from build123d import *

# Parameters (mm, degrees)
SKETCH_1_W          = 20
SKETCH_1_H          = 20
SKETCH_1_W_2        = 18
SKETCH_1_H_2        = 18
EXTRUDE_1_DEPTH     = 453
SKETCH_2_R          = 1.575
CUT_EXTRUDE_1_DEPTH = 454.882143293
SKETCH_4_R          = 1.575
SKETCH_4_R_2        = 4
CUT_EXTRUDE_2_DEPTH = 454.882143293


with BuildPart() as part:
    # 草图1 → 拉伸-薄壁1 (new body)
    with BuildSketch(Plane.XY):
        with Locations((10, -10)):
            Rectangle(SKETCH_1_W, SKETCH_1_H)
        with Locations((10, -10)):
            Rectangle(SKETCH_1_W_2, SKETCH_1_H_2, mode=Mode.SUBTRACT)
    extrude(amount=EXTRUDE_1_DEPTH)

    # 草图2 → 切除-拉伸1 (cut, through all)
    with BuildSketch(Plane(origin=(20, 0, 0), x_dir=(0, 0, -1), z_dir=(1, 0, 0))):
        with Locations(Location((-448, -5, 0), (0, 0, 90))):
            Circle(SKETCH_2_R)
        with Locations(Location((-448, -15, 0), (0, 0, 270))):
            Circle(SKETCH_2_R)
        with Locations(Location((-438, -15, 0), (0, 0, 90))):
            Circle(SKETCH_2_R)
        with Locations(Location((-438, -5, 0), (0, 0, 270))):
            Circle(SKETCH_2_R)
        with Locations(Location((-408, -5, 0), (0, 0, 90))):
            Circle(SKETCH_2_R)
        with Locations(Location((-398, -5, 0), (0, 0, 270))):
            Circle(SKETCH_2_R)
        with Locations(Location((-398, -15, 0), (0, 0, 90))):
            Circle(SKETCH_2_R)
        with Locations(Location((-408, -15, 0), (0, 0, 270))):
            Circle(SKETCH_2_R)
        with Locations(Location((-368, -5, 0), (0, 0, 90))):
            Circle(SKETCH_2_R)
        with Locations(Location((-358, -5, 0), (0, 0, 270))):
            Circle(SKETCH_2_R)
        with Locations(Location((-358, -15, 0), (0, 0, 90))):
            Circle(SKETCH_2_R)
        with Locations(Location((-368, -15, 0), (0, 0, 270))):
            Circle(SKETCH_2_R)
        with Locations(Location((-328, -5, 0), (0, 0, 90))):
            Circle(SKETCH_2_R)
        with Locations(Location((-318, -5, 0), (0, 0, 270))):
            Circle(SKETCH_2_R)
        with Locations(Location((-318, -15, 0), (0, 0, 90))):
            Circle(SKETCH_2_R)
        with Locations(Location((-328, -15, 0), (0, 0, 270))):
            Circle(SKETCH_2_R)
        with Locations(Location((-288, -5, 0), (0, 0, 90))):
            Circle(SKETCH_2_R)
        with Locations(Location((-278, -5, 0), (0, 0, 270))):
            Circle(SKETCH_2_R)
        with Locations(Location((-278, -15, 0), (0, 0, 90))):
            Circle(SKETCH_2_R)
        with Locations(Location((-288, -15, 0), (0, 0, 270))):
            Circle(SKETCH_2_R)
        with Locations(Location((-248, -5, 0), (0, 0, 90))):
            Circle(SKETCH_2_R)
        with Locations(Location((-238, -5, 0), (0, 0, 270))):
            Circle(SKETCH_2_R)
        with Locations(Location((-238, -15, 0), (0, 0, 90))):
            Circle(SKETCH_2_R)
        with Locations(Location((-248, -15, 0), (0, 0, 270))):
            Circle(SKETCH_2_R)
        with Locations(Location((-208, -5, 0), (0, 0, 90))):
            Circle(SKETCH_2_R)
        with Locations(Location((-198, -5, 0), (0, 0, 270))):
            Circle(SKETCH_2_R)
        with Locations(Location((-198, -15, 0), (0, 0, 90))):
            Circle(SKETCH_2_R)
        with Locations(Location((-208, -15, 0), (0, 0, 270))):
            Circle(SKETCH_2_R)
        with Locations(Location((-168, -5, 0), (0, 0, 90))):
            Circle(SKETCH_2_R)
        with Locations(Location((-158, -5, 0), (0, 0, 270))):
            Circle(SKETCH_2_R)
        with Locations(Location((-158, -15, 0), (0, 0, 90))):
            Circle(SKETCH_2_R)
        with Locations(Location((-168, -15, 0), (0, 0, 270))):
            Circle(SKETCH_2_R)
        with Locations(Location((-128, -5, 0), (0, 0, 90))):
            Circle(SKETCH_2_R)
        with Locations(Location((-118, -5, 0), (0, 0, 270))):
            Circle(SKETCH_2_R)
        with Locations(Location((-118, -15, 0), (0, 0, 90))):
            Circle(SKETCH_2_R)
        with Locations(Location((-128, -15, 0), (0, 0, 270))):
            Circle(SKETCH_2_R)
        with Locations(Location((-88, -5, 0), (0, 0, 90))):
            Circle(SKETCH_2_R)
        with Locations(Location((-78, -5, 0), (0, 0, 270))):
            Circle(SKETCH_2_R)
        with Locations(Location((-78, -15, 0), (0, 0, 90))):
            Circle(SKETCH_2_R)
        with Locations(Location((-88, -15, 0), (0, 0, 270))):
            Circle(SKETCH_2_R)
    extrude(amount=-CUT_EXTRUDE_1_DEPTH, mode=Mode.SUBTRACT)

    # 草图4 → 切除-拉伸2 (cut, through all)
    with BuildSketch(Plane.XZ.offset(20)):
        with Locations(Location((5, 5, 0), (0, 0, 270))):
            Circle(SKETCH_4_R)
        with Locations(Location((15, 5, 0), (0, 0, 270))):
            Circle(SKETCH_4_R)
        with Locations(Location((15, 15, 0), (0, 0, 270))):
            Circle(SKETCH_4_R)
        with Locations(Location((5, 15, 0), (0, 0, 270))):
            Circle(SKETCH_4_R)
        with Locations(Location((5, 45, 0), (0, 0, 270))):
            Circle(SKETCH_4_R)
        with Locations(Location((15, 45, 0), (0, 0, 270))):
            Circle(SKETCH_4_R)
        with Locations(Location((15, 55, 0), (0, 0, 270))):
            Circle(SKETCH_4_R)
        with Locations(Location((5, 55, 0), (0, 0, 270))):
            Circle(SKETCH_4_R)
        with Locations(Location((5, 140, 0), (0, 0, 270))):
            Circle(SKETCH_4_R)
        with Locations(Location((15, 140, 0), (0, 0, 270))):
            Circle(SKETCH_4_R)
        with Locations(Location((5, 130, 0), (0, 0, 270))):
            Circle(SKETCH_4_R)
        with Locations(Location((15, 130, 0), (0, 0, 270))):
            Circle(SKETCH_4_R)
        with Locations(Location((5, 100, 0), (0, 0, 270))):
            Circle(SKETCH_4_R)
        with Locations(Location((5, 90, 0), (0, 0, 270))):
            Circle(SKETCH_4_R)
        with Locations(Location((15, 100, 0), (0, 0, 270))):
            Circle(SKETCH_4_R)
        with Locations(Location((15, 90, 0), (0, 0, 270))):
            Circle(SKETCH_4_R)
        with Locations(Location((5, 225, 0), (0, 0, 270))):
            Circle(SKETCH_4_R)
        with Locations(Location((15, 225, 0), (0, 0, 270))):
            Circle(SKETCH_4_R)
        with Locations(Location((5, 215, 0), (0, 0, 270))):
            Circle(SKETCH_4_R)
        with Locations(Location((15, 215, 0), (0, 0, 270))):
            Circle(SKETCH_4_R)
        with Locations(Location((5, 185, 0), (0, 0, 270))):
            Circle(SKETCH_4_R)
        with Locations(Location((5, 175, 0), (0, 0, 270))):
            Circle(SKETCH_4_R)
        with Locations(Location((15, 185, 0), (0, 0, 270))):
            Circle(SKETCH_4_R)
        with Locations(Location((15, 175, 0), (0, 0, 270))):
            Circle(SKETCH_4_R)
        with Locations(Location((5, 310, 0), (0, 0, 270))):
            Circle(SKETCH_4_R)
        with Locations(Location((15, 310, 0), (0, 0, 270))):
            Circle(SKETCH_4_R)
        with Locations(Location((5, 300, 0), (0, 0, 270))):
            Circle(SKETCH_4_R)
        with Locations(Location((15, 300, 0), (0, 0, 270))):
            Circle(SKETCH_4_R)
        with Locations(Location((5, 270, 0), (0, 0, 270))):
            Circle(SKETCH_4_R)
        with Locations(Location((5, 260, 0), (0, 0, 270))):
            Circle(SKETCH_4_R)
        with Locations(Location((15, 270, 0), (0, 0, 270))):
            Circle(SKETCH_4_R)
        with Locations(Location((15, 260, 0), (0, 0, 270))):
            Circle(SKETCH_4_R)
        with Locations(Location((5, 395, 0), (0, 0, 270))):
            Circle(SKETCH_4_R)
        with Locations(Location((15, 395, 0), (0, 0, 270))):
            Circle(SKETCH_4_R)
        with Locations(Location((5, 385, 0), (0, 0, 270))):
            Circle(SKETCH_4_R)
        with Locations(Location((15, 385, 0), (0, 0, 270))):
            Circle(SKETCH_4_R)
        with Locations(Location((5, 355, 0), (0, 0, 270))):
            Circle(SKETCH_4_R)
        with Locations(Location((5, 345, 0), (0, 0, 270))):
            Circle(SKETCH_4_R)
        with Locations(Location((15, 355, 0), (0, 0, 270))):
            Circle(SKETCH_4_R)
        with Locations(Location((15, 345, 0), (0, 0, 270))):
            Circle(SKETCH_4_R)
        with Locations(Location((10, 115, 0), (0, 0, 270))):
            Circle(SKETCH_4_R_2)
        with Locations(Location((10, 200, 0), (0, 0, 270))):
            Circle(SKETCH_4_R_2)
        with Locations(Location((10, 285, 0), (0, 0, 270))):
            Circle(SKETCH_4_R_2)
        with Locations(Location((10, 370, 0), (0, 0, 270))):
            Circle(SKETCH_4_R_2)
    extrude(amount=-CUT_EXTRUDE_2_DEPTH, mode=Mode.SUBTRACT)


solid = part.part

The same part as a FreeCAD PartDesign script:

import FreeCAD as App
import Part
import Sketcher

doc = App.newDocument("Part")
body = doc.addObject("PartDesign::Body", "Body")

# Sketch on XY plane
sketch1 = doc.addObject("Sketcher::SketchObject", "Sketch")
body.addObject(sketch1)
sketch1.AttachmentSupport = (doc.XY_Plane, [""])
sketch1.MapMode = "FlatFace"
sketch1.addGeometry([
    Part.LineSegment(App.Vector(0, 0, 0), App.Vector(0, -20, 0)),  # 0
    Part.LineSegment(App.Vector(0, -20, 0), App.Vector(20, -20, 0)),  # 1
    Part.LineSegment(App.Vector(20, -20, 0), App.Vector(20, 0, 0)),  # 2
    Part.LineSegment(App.Vector(20, 0, 0), App.Vector(0, 0, 0)),  # 3
    Part.LineSegment(App.Vector(19, -19, 0), App.Vector(1, -19, 0)),  # 4
    Part.LineSegment(App.Vector(1, -19, 0), App.Vector(1, -1, 0)),  # 5
    Part.LineSegment(App.Vector(1, -1, 0), App.Vector(19, -1, 0)),  # 6
    Part.LineSegment(App.Vector(19, -1, 0), App.Vector(19, -19, 0)),  # 7
], False)
sketch1.addConstraint([
    Sketcher.Constraint("Coincident", 0, 2, 1, 1),
    Sketcher.Constraint("Coincident", 1, 2, 2, 1),
    Sketcher.Constraint("Coincident", 2, 2, 3, 1),
    Sketcher.Constraint("Coincident", 3, 2, 0, 1),
    Sketcher.Constraint("Coincident", 4, 2, 5, 1),
    Sketcher.Constraint("Coincident", 5, 2, 6, 1),
    Sketcher.Constraint("Coincident", 6, 2, 7, 1),
    Sketcher.Constraint("Coincident", 7, 2, 4, 1),
    Sketcher.Constraint("Vertical", 0),
    Sketcher.Constraint("Horizontal", 1),
    Sketcher.Constraint("Vertical", 2),
    Sketcher.Constraint("Horizontal", 3),
    Sketcher.Constraint("Horizontal", 4),
    Sketcher.Constraint("Vertical", 5),
    Sketcher.Constraint("Horizontal", 6),
    Sketcher.Constraint("Vertical", 7),
    Sketcher.Constraint("Coincident", 3, 2, -1, 1),
    Sketcher.Constraint("Equal", 3, 0),
    Sketcher.Constraint("Equal", 6, 5),
    Sketcher.Constraint("DistanceX", 1, 1, 1, 2, 20.0),
    Sketcher.Constraint("DistanceX", 4, 2, 4, 1, 18.0),
    Sketcher.Constraint("DistanceX", -1, 1, 4, 2, 1.0),
    Sketcher.Constraint("DistanceY", 4, 2, -1, 1, 19.0),
])
pad1 = doc.addObject("PartDesign::Pad", "Pad")
body.addObject(pad1)
pad1.Profile = sketch1
pad1.Length = 453

# Sketch on YZ plane
sketch2 = doc.addObject("Sketcher::SketchObject", "Sketch001")
body.addObject(sketch2)
sketch2.AttachmentSupport = (doc.YZ_Plane, [""])
sketch2.MapMode = "FlatFace"
sketch2.AttachmentOffset = App.Placement(App.Vector(0, 0, 20), App.Rotation())
sketch2.addGeometry([
    Part.Circle(App.Vector(-5, 448, 0), App.Vector(0, 0, 1), 1.575),  # 0
    Part.Circle(App.Vector(-15, 448, 0), App.Vector(0, 0, 1), 1.575),  # 1
    Part.Circle(App.Vector(-15, 438, 0), App.Vector(0, 0, 1), 1.575),  # 2
    Part.Circle(App.Vector(-5, 438, 0), App.Vector(0, 0, 1), 1.575),  # 3
    Part.Circle(App.Vector(-5, 408, 0), App.Vector(0, 0, 1), 1.575),  # 4
    Part.Circle(App.Vector(-5, 398, 0), App.Vector(0, 0, 1), 1.575),  # 5
    Part.Circle(App.Vector(-15, 398, 0), App.Vector(0, 0, 1), 1.575),  # 6
    Part.Circle(App.Vector(-15, 408, 0), App.Vector(0, 0, 1), 1.575),  # 7
    Part.Circle(App.Vector(-5, 368, 0), App.Vector(0, 0, 1), 1.575),  # 8
    Part.Circle(App.Vector(-5, 358, 0), App.Vector(0, 0, 1), 1.575),  # 9
    Part.Circle(App.Vector(-15, 358, 0), App.Vector(0, 0, 1), 1.575),  # 10
    Part.Circle(App.Vector(-15, 368, 0), App.Vector(0, 0, 1), 1.575),  # 11
    Part.Circle(App.Vector(-5, 328, 0), App.Vector(0, 0, 1), 1.575),  # 12
    Part.Circle(App.Vector(-5, 318, 0), App.Vector(0, 0, 1), 1.575),  # 13
    Part.Circle(App.Vector(-15, 318, 0), App.Vector(0, 0, 1), 1.575),  # 14
    Part.Circle(App.Vector(-15, 328, 0), App.Vector(0, 0, 1), 1.575),  # 15
    Part.Circle(App.Vector(-5, 288, 0), App.Vector(0, 0, 1), 1.575),  # 16
    Part.Circle(App.Vector(-5, 278, 0), App.Vector(0, 0, 1), 1.575),  # 17
    Part.Circle(App.Vector(-15, 278, 0), App.Vector(0, 0, 1), 1.575),  # 18
    Part.Circle(App.Vector(-15, 288, 0), App.Vector(0, 0, 1), 1.575),  # 19
    Part.Circle(App.Vector(-5, 248, 0), App.Vector(0, 0, 1), 1.575),  # 20
    Part.Circle(App.Vector(-5, 238, 0), App.Vector(0, 0, 1), 1.575),  # 21
    Part.Circle(App.Vector(-15, 238, 0), App.Vector(0, 0, 1), 1.575),  # 22
    Part.Circle(App.Vector(-15, 248, 0), App.Vector(0, 0, 1), 1.575),  # 23
    Part.Circle(App.Vector(-5, 208, 0), App.Vector(0, 0, 1), 1.575),  # 24
    Part.Circle(App.Vector(-5, 198, 0), App.Vector(0, 0, 1), 1.575),  # 25
    Part.Circle(App.Vector(-15, 198, 0), App.Vector(0, 0, 1), 1.575),  # 26
    Part.Circle(App.Vector(-15, 208, 0), App.Vector(0, 0, 1), 1.575),  # 27
    Part.Circle(App.Vector(-5, 168, 0), App.Vector(0, 0, 1), 1.575),  # 28
    Part.Circle(App.Vector(-5, 158, 0), App.Vector(0, 0, 1), 1.575),  # 29
    Part.Circle(App.Vector(-15, 158, 0), App.Vector(0, 0, 1), 1.575),  # 30
    Part.Circle(App.Vector(-15, 168, 0), App.Vector(0, 0, 1), 1.575),  # 31
    Part.Circle(App.Vector(-5, 128, 0), App.Vector(0, 0, 1), 1.575),  # 32
    Part.Circle(App.Vector(-5, 118, 0), App.Vector(0, 0, 1), 1.575),  # 33
    Part.Circle(App.Vector(-15, 118, 0), App.Vector(0, 0, 1), 1.575),  # 34
    Part.Circle(App.Vector(-15, 128, 0), App.Vector(0, 0, 1), 1.575),  # 35
    Part.Circle(App.Vector(-5, 88, 0), App.Vector(0, 0, 1), 1.575),  # 36
    Part.Circle(App.Vector(-5, 78, 0), App.Vector(0, 0, 1), 1.575),  # 37
    Part.Circle(App.Vector(-15, 78, 0), App.Vector(0, 0, 1), 1.575),  # 38
    Part.Circle(App.Vector(-15, 88, 0), App.Vector(0, 0, 1), 1.575),  # 39
], False)
sketch2.addConstraint([
    Sketcher.Constraint("Equal", 0, 1),
    Sketcher.Constraint("Equal", 1, 2),
    Sketcher.Constraint("Equal", 2, 3),
    Sketcher.Constraint("Equal", 3, 4),
    Sketcher.Constraint("Equal", 4, 5),
    Sketcher.Constraint("Equal", 5, 6),
    Sketcher.Constraint("Equal", 6, 7),
    Sketcher.Constraint("Equal", 7, 8),
    Sketcher.Constraint("Equal", 8, 9),
    Sketcher.Constraint("Equal", 9, 10),
    Sketcher.Constraint("Equal", 10, 11),
    Sketcher.Constraint("Equal", 11, 12),
    Sketcher.Constraint("Equal", 12, 13),
    Sketcher.Constraint("Equal", 13, 14),
    Sketcher.Constraint("Equal", 14, 15),
    Sketcher.Constraint("Equal", 15, 16),
    Sketcher.Constraint("Equal", 16, 17),
    Sketcher.Constraint("Equal", 17, 18),
    Sketcher.Constraint("Equal", 18, 19),
    Sketcher.Constraint("Equal", 19, 20),
    Sketcher.Constraint("Equal", 20, 21),
    Sketcher.Constraint("Equal", 21, 22),
    Sketcher.Constraint("Equal", 22, 23),
    Sketcher.Constraint("Equal", 23, 24),
    Sketcher.Constraint("Equal", 24, 25),
    Sketcher.Constraint("Equal", 25, 26),
    Sketcher.Constraint("Equal", 26, 27),
    Sketcher.Constraint("Equal", 27, 28),
    Sketcher.Constraint("Equal", 28, 29),
    Sketcher.Constraint("Equal", 29, 30),
    Sketcher.Constraint("Equal", 30, 31),
    Sketcher.Constraint("Equal", 31, 32),
    Sketcher.Constraint("Equal", 32, 33),
    Sketcher.Constraint("Equal", 33, 34),
    Sketcher.Constraint("Equal", 34, 35),
    Sketcher.Constraint("Equal", 35, 36),
    Sketcher.Constraint("Equal", 36, 37),
    Sketcher.Constraint("Equal", 37, 38),
    Sketcher.Constraint("Equal", 38, 39),
    Sketcher.Constraint("Horizontal", 0, 3, 1, 3),
    Sketcher.Constraint("Horizontal", 2, 3, 3, 3),
    Sketcher.Constraint("Horizontal", 5, 3, 6, 3),
    Sketcher.Constraint("Horizontal", 4, 3, 7, 3),
    Sketcher.Constraint("Horizontal", 9, 3, 10, 3),
    Sketcher.Constraint("Horizontal", 8, 3, 11, 3),
    Sketcher.Constraint("Horizontal", 13, 3, 14, 3),
    Sketcher.Constraint("Horizontal", 12, 3, 15, 3),
    Sketcher.Constraint("Horizontal", 17, 3, 18, 3),
    Sketcher.Constraint("Horizontal", 16, 3, 19, 3),
    Sketcher.Constraint("Horizontal", 21, 3, 22, 3),
    Sketcher.Constraint("Horizontal", 20, 3, 23, 3),
    Sketcher.Constraint("Horizontal", 25, 3, 26, 3),
    Sketcher.Constraint("Horizontal", 24, 3, 27, 3),
    Sketcher.Constraint("Horizontal", 29, 3, 30, 3),
    Sketcher.Constraint("Horizontal", 28, 3, 31, 3),
    Sketcher.Constraint("Horizontal", 33, 3, 34, 3),
    Sketcher.Constraint("Horizontal", 32, 3, 35, 3),
    Sketcher.Constraint("Horizontal", 37, 3, 38, 3),
    Sketcher.Constraint("Horizontal", 36, 3, 39, 3),
    Sketcher.Constraint("Vertical", 1, 3, 2, 3),
    Sketcher.Constraint("Vertical", 0, 3, 3, 3),
    Sketcher.Constraint("Vertical", 3, 3, 4, 3),
    Sketcher.Constraint("Vertical", 4, 3, 5, 3),
    Sketcher.Constraint("Vertical", 2, 3, 6, 3),
    Sketcher.Constraint("Vertical", 6, 3, 7, 3),
    Sketcher.Constraint("Vertical", 5, 3, 8, 3),
    Sketcher.Constraint("Vertical", 8, 3, 9, 3),
    Sketcher.Constraint("Vertical", 7, 3, 10, 3),
    Sketcher.Constraint("Vertical", 10, 3, 11, 3),
    Sketcher.Constraint("Vertical", 9, 3, 12, 3),
    Sketcher.Constraint("Vertical", 12, 3, 13, 3),
    Sketcher.Constraint("Vertical", 11, 3, 14, 3),
    Sketcher.Constraint("Vertical", 14, 3, 15, 3),
    Sketcher.Constraint("Vertical", 13, 3, 16, 3),
    Sketcher.Constraint("Vertical", 16, 3, 17, 3),
    Sketcher.Constraint("Vertical", 15, 3, 18, 3),
    Sketcher.Constraint("Vertical", 18, 3, 19, 3),
    Sketcher.Constraint("Vertical", 17, 3, 20, 3),
    Sketcher.Constraint("Vertical", 20, 3, 21, 3),
    Sketcher.Constraint("Vertical", 19, 3, 22, 3),
    Sketcher.Constraint("Vertical", 22, 3, 23, 3),
    Sketcher.Constraint("Vertical", 21, 3, 24, 3),
    Sketcher.Constraint("Vertical", 24, 3, 25, 3),
    Sketcher.Constraint("Vertical", 23, 3, 26, 3),
    Sketcher.Constraint("Vertical", 26, 3, 27, 3),
    Sketcher.Constraint("Vertical", 25, 3, 28, 3),
    Sketcher.Constraint("Vertical", 28, 3, 29, 3),
    Sketcher.Constraint("Vertical", 27, 3, 30, 3),
    Sketcher.Constraint("Vertical", 30, 3, 31, 3),
    Sketcher.Constraint("Vertical", 29, 3, 32, 3),
    Sketcher.Constraint("Vertical", 32, 3, 33, 3),
    Sketcher.Constraint("Vertical", 31, 3, 34, 3),
    Sketcher.Constraint("Vertical", 34, 3, 35, 3),
    Sketcher.Constraint("Vertical", 33, 3, 36, 3),
    Sketcher.Constraint("Vertical", 36, 3, 37, 3),
    Sketcher.Constraint("Vertical", 35, 3, 38, 3),
    Sketcher.Constraint("Vertical", 38, 3, 39, 3),
    Sketcher.Constraint("Diameter", 0, 3.15),
    Sketcher.Constraint("DistanceX", 0, 3, -1, 1, 5.0),
    Sketcher.Constraint("DistanceY", -1, 1, 0, 3, 448.0),
    Sketcher.Constraint("DistanceX", 1, 3, -1, 1, 15.0),
    Sketcher.Constraint("DistanceY", -1, 1, 2, 3, 438.0),
    Sketcher.Constraint("DistanceY", -1, 1, 4, 3, 408.0),
    Sketcher.Constraint("DistanceY", -1, 1, 5, 3, 398.0),
    Sketcher.Constraint("DistanceY", -1, 1, 8, 3, 368.0),
    Sketcher.Constraint("DistanceY", -1, 1, 9, 3, 358.0),
    Sketcher.Constraint("DistanceY", -1, 1, 12, 3, 328.0),
    Sketcher.Constraint("DistanceY", -1, 1, 13, 3, 318.0),
    Sketcher.Constraint("DistanceY", -1, 1, 16, 3, 288.0),
    Sketcher.Constraint("DistanceY", -1, 1, 17, 3, 278.0),
    Sketcher.Constraint("DistanceY", -1, 1, 20, 3, 248.0),
    Sketcher.Constraint("DistanceY", -1, 1, 21, 3, 238.0),
    Sketcher.Constraint("DistanceY", -1, 1, 24, 3, 208.0),
    Sketcher.Constraint("DistanceY", -1, 1, 25, 3, 198.0),
    Sketcher.Constraint("DistanceY", -1, 1, 28, 3, 168.0),
    Sketcher.Constraint("DistanceY", -1, 1, 29, 3, 158.0),
    Sketcher.Constraint("DistanceY", -1, 1, 32, 3, 128.0),
    Sketcher.Constraint("DistanceY", -1, 1, 33, 3, 118.0),
    Sketcher.Constraint("DistanceY", -1, 1, 36, 3, 88.0),
    Sketcher.Constraint("DistanceY", -1, 1, 37, 3, 78.0),
])
pocket1 = doc.addObject("PartDesign::Pocket", "Pocket")
body.addObject(pocket1)
pocket1.Profile = sketch2
pocket1.Type = "ThroughAll"

# Sketch on XZ plane
sketch3 = doc.addObject("Sketcher::SketchObject", "Sketch002")
body.addObject(sketch3)
sketch3.AttachmentSupport = (doc.XZ_Plane, [""])
sketch3.MapMode = "FlatFace"
sketch3.AttachmentOffset = App.Placement(App.Vector(0, 0, 20), App.Rotation())
sketch3.addGeometry([
    Part.Circle(App.Vector(5, 5, 0), App.Vector(0, 0, 1), 1.575),  # 0
    Part.Circle(App.Vector(15, 5, 0), App.Vector(0, 0, 1), 1.575),  # 1
    Part.Circle(App.Vector(15, 15, 0), App.Vector(0, 0, 1), 1.575),  # 2
    Part.Circle(App.Vector(5, 15, 0), App.Vector(0, 0, 1), 1.575),  # 3
    Part.Circle(App.Vector(5, 45, 0), App.Vector(0, 0, 1), 1.575),  # 4
    Part.Circle(App.Vector(15, 45, 0), App.Vector(0, 0, 1), 1.575),  # 5
    Part.Circle(App.Vector(15, 55, 0), App.Vector(0, 0, 1), 1.575),  # 6
    Part.Circle(App.Vector(5, 55, 0), App.Vector(0, 0, 1), 1.575),  # 7
    Part.Circle(App.Vector(5, 140, 0), App.Vector(0, 0, 1), 1.575),  # 8
    Part.Circle(App.Vector(15, 140, 0), App.Vector(0, 0, 1), 1.575),  # 9
    Part.Circle(App.Vector(5, 130, 0), App.Vector(0, 0, 1), 1.575),  # 10
    Part.Circle(App.Vector(15, 130, 0), App.Vector(0, 0, 1), 1.575),  # 11
    Part.Circle(App.Vector(5, 100, 0), App.Vector(0, 0, 1), 1.575),  # 12
    Part.Circle(App.Vector(5, 90, 0), App.Vector(0, 0, 1), 1.575),  # 13
    Part.Circle(App.Vector(15, 100, 0), App.Vector(0, 0, 1), 1.575),  # 14
    Part.Circle(App.Vector(15, 90, 0), App.Vector(0, 0, 1), 1.575),  # 15
    Part.Circle(App.Vector(5, 225, 0), App.Vector(0, 0, 1), 1.575),  # 16
    Part.Circle(App.Vector(15, 225, 0), App.Vector(0, 0, 1), 1.575),  # 17
    Part.Circle(App.Vector(5, 215, 0), App.Vector(0, 0, 1), 1.575),  # 18
    Part.Circle(App.Vector(15, 215, 0), App.Vector(0, 0, 1), 1.575),  # 19
    Part.Circle(App.Vector(5, 185, 0), App.Vector(0, 0, 1), 1.575),  # 20
    Part.Circle(App.Vector(5, 175, 0), App.Vector(0, 0, 1), 1.575),  # 21
    Part.Circle(App.Vector(15, 185, 0), App.Vector(0, 0, 1), 1.575),  # 22
    Part.Circle(App.Vector(15, 175, 0), App.Vector(0, 0, 1), 1.575),  # 23
    Part.Circle(App.Vector(5, 310, 0), App.Vector(0, 0, 1), 1.575),  # 24
    Part.Circle(App.Vector(15, 310, 0), App.Vector(0, 0, 1), 1.575),  # 25
    Part.Circle(App.Vector(5, 300, 0), App.Vector(0, 0, 1), 1.575),  # 26
    Part.Circle(App.Vector(15, 300, 0), App.Vector(0, 0, 1), 1.575),  # 27
    Part.Circle(App.Vector(5, 270, 0), App.Vector(0, 0, 1), 1.575),  # 28
    Part.Circle(App.Vector(5, 260, 0), App.Vector(0, 0, 1), 1.575),  # 29
    Part.Circle(App.Vector(15, 270, 0), App.Vector(0, 0, 1), 1.575),  # 30
    Part.Circle(App.Vector(15, 260, 0), App.Vector(0, 0, 1), 1.575),  # 31
    Part.Circle(App.Vector(5, 395, 0), App.Vector(0, 0, 1), 1.575),  # 32
    Part.Circle(App.Vector(15, 395, 0), App.Vector(0, 0, 1), 1.575),  # 33
    Part.Circle(App.Vector(5, 385, 0), App.Vector(0, 0, 1), 1.575),  # 34
    Part.Circle(App.Vector(15, 385, 0), App.Vector(0, 0, 1), 1.575),  # 35
    Part.Circle(App.Vector(5, 355, 0), App.Vector(0, 0, 1), 1.575),  # 36
    Part.Circle(App.Vector(5, 345, 0), App.Vector(0, 0, 1), 1.575),  # 37
    Part.Circle(App.Vector(15, 355, 0), App.Vector(0, 0, 1), 1.575),  # 38
    Part.Circle(App.Vector(15, 345, 0), App.Vector(0, 0, 1), 1.575),  # 39
    Part.Circle(App.Vector(10, 115, 0), App.Vector(0, 0, 1), 4),  # 40
    Part.Circle(App.Vector(10, 200, 0), App.Vector(0, 0, 1), 4),  # 41
    Part.Circle(App.Vector(10, 285, 0), App.Vector(0, 0, 1), 4),  # 42
    Part.Circle(App.Vector(10, 370, 0), App.Vector(0, 0, 1), 4),  # 43
], False)
sketch3.addConstraint([
    Sketcher.Constraint("Equal", 0, 1),
    Sketcher.Constraint("Equal", 1, 2),
    Sketcher.Constraint("Equal", 2, 3),
    Sketcher.Constraint("Equal", 3, 4),
    Sketcher.Constraint("Equal", 4, 5),
    Sketcher.Constraint("Equal", 5, 6),
    Sketcher.Constraint("Equal", 6, 7),
    Sketcher.Constraint("Equal", 7, 8),
    Sketcher.Constraint("Equal", 8, 9),
    Sketcher.Constraint("Equal", 9, 10),
    Sketcher.Constraint("Equal", 10, 11),
    Sketcher.Constraint("Equal", 11, 12),
    Sketcher.Constraint("Equal", 12, 13),
    Sketcher.Constraint("Equal", 13, 14),
    Sketcher.Constraint("Equal", 14, 15),
    Sketcher.Constraint("Equal", 15, 16),
    Sketcher.Constraint("Equal", 16, 17),
    Sketcher.Constraint("Equal", 17, 18),
    Sketcher.Constraint("Equal", 18, 19),
    Sketcher.Constraint("Equal", 19, 20),
    Sketcher.Constraint("Equal", 20, 21),
    Sketcher.Constraint("Equal", 21, 22),
    Sketcher.Constraint("Equal", 22, 23),
    Sketcher.Constraint("Equal", 23, 24),
    Sketcher.Constraint("Equal", 24, 25),
    Sketcher.Constraint("Equal", 25, 26),
    Sketcher.Constraint("Equal", 26, 27),
    Sketcher.Constraint("Equal", 27, 28),
    Sketcher.Constraint("Equal", 28, 29),
    Sketcher.Constraint("Equal", 29, 30),
    Sketcher.Constraint("Equal", 30, 31),
    Sketcher.Constraint("Equal", 31, 32),
    Sketcher.Constraint("Equal", 32, 33),
    Sketcher.Constraint("Equal", 33, 34),
    Sketcher.Constraint("Equal", 34, 35),
    Sketcher.Constraint("Equal", 35, 36),
    Sketcher.Constraint("Equal", 36, 37),
    Sketcher.Constraint("Equal", 37, 38),
    Sketcher.Constraint("Equal", 38, 39),
    Sketcher.Constraint("Equal", 40, 41),
    Sketcher.Constraint("Equal", 41, 42),
    Sketcher.Constraint("Equal", 42, 43),
    Sketcher.Constraint("Horizontal", 0, 3, 1, 3),
    Sketcher.Constraint("Horizontal", 2, 3, 3, 3),
    Sketcher.Constraint("Horizontal", 4, 3, 5, 3),
    Sketcher.Constraint("Horizontal", 6, 3, 7, 3),
    Sketcher.Constraint("Horizontal", 8, 3, 9, 3),
    Sketcher.Constraint("Horizontal", 10, 3, 11, 3),
    Sketcher.Constraint("Horizontal", 12, 3, 14, 3),
    Sketcher.Constraint("Horizontal", 13, 3, 15, 3),
    Sketcher.Constraint("Horizontal", 16, 3, 17, 3),
    Sketcher.Constraint("Horizontal", 18, 3, 19, 3),
    Sketcher.Constraint("Horizontal", 20, 3, 22, 3),
    Sketcher.Constraint("Horizontal", 21, 3, 23, 3),
    Sketcher.Constraint("Horizontal", 24, 3, 25, 3),
    Sketcher.Constraint("Horizontal", 26, 3, 27, 3),
    Sketcher.Constraint("Horizontal", 28, 3, 30, 3),
    Sketcher.Constraint("Horizontal", 29, 3, 31, 3),
    Sketcher.Constraint("Horizontal", 32, 3, 33, 3),
    Sketcher.Constraint("Horizontal", 34, 3, 35, 3),
    Sketcher.Constraint("Horizontal", 36, 3, 38, 3),
    Sketcher.Constraint("Horizontal", 37, 3, 39, 3),
    Sketcher.Constraint("Vertical", 1, 3, 2, 3),
    Sketcher.Constraint("Vertical", 0, 3, 3, 3),
    Sketcher.Constraint("Vertical", 3, 3, 4, 3),
    Sketcher.Constraint("Vertical", 2, 3, 5, 3),
    Sketcher.Constraint("Vertical", 5, 3, 6, 3),
    Sketcher.Constraint("Vertical", 4, 3, 7, 3),
    Sketcher.Constraint("Vertical", 7, 3, 8, 3),
    Sketcher.Constraint("Vertical", 6, 3, 9, 3),
    Sketcher.Constraint("Vertical", 8, 3, 10, 3),
    Sketcher.Constraint("Vertical", 9, 3, 11, 3),
    Sketcher.Constraint("Vertical", 10, 3, 12, 3),
    Sketcher.Constraint("Vertical", 12, 3, 13, 3),
    Sketcher.Constraint("Vertical", 11, 3, 14, 3),
    Sketcher.Constraint("Vertical", 14, 3, 15, 3),
    Sketcher.Constraint("Vertical", 13, 3, 16, 3),
    Sketcher.Constraint("Vertical", 15, 3, 17, 3),
    Sketcher.Constraint("Vertical", 16, 3, 18, 3),
    Sketcher.Constraint("Vertical", 17, 3, 19, 3),
    Sketcher.Constraint("Vertical", 18, 3, 20, 3),
    Sketcher.Constraint("Vertical", 20, 3, 21, 3),
    Sketcher.Constraint("Vertical", 19, 3, 22, 3),
    Sketcher.Constraint("Vertical", 22, 3, 23, 3),
    Sketcher.Constraint("Vertical", 21, 3, 24, 3),
    Sketcher.Constraint("Vertical", 23, 3, 25, 3),
    Sketcher.Constraint("Vertical", 24, 3, 26, 3),
    Sketcher.Constraint("Vertical", 25, 3, 27, 3),
    Sketcher.Constraint("Vertical", 26, 3, 28, 3),
    Sketcher.Constraint("Vertical", 28, 3, 29, 3),
    Sketcher.Constraint("Vertical", 27, 3, 30, 3),
    Sketcher.Constraint("Vertical", 30, 3, 31, 3),
    Sketcher.Constraint("Vertical", 29, 3, 32, 3),
    Sketcher.Constraint("Vertical", 31, 3, 33, 3),
    Sketcher.Constraint("Vertical", 32, 3, 34, 3),
    Sketcher.Constraint("Vertical", 33, 3, 35, 3),
    Sketcher.Constraint("Vertical", 34, 3, 36, 3),
    Sketcher.Constraint("Vertical", 36, 3, 37, 3),
    Sketcher.Constraint("Vertical", 35, 3, 38, 3),
    Sketcher.Constraint("Vertical", 38, 3, 39, 3),
    Sketcher.Constraint("Vertical", 40, 3, 41, 3),
    Sketcher.Constraint("Vertical", 41, 3, 42, 3),
    Sketcher.Constraint("Vertical", 42, 3, 43, 3),
    Sketcher.Constraint("Diameter", 40, 8.0),
    Sketcher.Constraint("Diameter", 0, 3.15),
    Sketcher.Constraint("DistanceX", -1, 1, 0, 3, 5.0),
    Sketcher.Constraint("DistanceY", -1, 1, 0, 3, 5.0),
    Sketcher.Constraint("DistanceX", -1, 1, 1, 3, 15.0),
    Sketcher.Constraint("DistanceY", -1, 1, 2, 3, 15.0),
    Sketcher.Constraint("DistanceY", -1, 1, 4, 3, 45.0),
    Sketcher.Constraint("DistanceY", -1, 1, 6, 3, 55.0),
    Sketcher.Constraint("DistanceY", -1, 1, 8, 3, 140.0),
    Sketcher.Constraint("DistanceY", -1, 1, 10, 3, 130.0),
    Sketcher.Constraint("DistanceY", -1, 1, 12, 3, 100.0),
    Sketcher.Constraint("DistanceY", -1, 1, 13, 3, 90.0),
    Sketcher.Constraint("DistanceY", -1, 1, 16, 3, 225.0),
    Sketcher.Constraint("DistanceY", -1, 1, 18, 3, 215.0),
    Sketcher.Constraint("DistanceY", -1, 1, 20, 3, 185.0),
    Sketcher.Constraint("DistanceY", -1, 1, 21, 3, 175.0),
    Sketcher.Constraint("DistanceY", -1, 1, 24, 3, 310.0),
    Sketcher.Constraint("DistanceY", -1, 1, 26, 3, 300.0),
    Sketcher.Constraint("DistanceY", -1, 1, 28, 3, 270.0),
    Sketcher.Constraint("DistanceY", -1, 1, 29, 3, 260.0),
    Sketcher.Constraint("DistanceY", -1, 1, 32, 3, 395.0),
    Sketcher.Constraint("DistanceY", -1, 1, 34, 3, 385.0),
    Sketcher.Constraint("DistanceY", -1, 1, 36, 3, 355.0),
    Sketcher.Constraint("DistanceY", -1, 1, 37, 3, 345.0),
    Sketcher.Constraint("DistanceX", -1, 1, 40, 3, 10.0),
    Sketcher.Constraint("DistanceY", -1, 1, 40, 3, 115.0),
    Sketcher.Constraint("DistanceY", -1, 1, 41, 3, 200.0),
    Sketcher.Constraint("DistanceY", -1, 1, 42, 3, 285.0),
    Sketcher.Constraint("DistanceY", -1, 1, 43, 3, 370.0),
])
pocket2 = doc.addObject("PartDesign::Pocket", "Pocket001")
body.addObject(pocket2)
pocket2.Profile = sketch3
pocket2.Type = "ThroughAll"

doc.recompute()
